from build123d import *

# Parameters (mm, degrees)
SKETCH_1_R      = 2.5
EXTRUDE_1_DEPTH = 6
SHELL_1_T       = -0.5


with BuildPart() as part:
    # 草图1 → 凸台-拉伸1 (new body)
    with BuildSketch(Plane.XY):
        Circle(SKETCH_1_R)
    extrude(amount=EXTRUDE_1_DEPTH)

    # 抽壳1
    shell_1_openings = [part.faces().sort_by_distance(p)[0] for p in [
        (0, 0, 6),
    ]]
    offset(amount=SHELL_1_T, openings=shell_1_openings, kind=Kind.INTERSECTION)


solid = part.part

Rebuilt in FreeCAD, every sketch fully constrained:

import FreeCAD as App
import Part
import Sketcher


def faces_at(feature, points):
    """Names of the faces that lie closest to the given points."""
    faces = feature.Shape.Faces
    near = lambda p: min(range(len(faces)), key=lambda i: faces[i].distToShape(Part.Vertex(*p))[0])
    return sorted({f"Face{near(p) + 1}" for p in points})

doc = App.newDocument("Part")
body = doc.addObject("PartDesign::Body", "Body")

# Sketch on XY plane
sketch1 = body.newObject("Sketcher::SketchObject", "Sketch")
sketch1.AttachmentSupport = (doc.getObject("XY_Plane"), [""])
sketch1.MapMode = "FlatFace"
sketch1.addGeometry(Part.Circle(App.Vector(0, 0, 0), App.Vector(0, 0, 1), 2.5), False)
sketch1.addConstraint(Sketcher.Constraint("Coincident", 0, 3, -1, 1))
sketch1.addConstraint(Sketcher.Constraint("Diameter", 0, 5.0))
pad1 = body.newObject("PartDesign::Pad", "Pad")
pad1.Profile = sketch1
pad1.Length = 6
doc.recompute()

thickness = body.newObject("PartDesign::Thickness", "Thickness")
thickness.Base = (pad1, faces_at(pad1, [(0, 0, 6)]))
thickness.Value = 0.5
thickness.Reversed = True
thickness.Join = "Intersection"

doc.recompute()
